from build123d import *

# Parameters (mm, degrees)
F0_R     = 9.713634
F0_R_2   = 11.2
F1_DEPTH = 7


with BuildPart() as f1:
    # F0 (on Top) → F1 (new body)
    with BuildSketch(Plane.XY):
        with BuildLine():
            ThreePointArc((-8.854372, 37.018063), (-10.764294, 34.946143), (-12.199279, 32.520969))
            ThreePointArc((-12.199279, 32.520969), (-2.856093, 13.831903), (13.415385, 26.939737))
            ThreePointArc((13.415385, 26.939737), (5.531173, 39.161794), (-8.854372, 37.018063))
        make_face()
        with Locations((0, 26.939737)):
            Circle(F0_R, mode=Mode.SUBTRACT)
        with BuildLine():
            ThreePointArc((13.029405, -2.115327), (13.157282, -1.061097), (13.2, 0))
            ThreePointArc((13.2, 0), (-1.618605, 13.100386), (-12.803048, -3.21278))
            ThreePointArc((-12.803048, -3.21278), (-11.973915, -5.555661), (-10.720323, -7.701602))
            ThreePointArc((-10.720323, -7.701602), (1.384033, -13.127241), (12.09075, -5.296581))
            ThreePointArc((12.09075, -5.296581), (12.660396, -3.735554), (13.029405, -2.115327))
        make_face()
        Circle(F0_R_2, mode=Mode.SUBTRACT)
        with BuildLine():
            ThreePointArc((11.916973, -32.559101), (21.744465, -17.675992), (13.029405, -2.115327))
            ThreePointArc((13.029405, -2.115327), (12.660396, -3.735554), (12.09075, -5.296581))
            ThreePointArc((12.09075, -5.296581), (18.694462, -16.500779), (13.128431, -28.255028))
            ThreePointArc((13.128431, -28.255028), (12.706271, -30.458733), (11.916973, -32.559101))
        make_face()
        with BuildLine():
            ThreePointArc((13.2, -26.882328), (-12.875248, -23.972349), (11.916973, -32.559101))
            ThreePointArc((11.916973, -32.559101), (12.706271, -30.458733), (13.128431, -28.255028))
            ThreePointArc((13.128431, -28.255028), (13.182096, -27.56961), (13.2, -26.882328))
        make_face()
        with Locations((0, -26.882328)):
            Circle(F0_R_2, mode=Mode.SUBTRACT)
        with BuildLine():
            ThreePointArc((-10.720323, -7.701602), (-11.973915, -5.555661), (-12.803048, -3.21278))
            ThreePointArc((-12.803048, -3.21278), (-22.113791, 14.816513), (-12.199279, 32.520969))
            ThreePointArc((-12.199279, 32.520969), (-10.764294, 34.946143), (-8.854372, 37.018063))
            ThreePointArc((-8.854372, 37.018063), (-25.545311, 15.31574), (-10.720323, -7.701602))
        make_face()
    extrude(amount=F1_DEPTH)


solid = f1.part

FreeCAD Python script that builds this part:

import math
import FreeCAD as App
import Part
import Sketcher

V = App.Vector
Q = App.Units.Quantity

doc = App.newDocument("Part")
body = doc.addObject("PartDesign::Body", "Body")

sketch1 = body.newObject("Sketcher::SketchObject", "Sketch")
sketch1.AttachmentSupport = (doc.getObject("XY_Plane"), [""])
sketch1.MapMode = "FlatFace"
sketch1.addGeometry(Part.ArcOfCircle(Part.Circle(V(0, 26.939737, 0), V(0, 0, 1), 13.415385), math.radians(0.000001), math.radians(131.30111)), False)
sketch1.addGeometry(Part.ArcOfCircle(Part.Circle(V(-1.802537, 14.32506, 0), V(0, 0, 1), 23.763433), math.radians(107.262595), math.radians(247.958785)), False)
sketch1.addGeometry(Part.ArcOfCircle(Part.Circle(V(0, 0, 0), V(0, 0, 1), 13.2), math.radians(-144.306104), math.radians(-23.656729)), False)
sketch1.addGeometry(Part.ArcOfCircle(Part.Circle(V(4.824142, -17.127693, 0), V(0, 0, 1), 13.884481), math.radians(-53.266155), math.radians(58.441967)), False)
sketch1.addGeometry(Part.ArcOfCircle(Part.Circle(V(0.00024, -26.882343, 0), V(0, 0, 1), 13.19976), math.radians(-5.969164), math.radians(0.000063)), False)
sketch1.addGeometry(Part.ArcOfCircle(Part.Circle(V(0, -26.882328, 0), V(0, 0, 1), 13.2), math.radians(-0.000001), math.radians(334.528722)), False)
sketch1.addGeometry(Part.ArcOfCircle(Part.Circle(V(4.612929, -17.049996, 0), V(0, 0, 1), 17.14297), math.radians(-64.781815), math.radians(60.596439)), False)
sketch1.addGeometry(Part.ArcOfCircle(Part.Circle(V(-0.000059, 0.000004, 0), V(0, 0, 1), 13.200059), math.radians(-9.221503), math.radians(-0.000017)), False)
sketch1.addGeometry(Part.ArcOfCircle(Part.Circle(V(0, 0, 0), V(0, 0, 1), 13.2), math.radians(0), math.radians(194.086851)), False)
sketch1.addGeometry(Part.ArcOfCircle(Part.Circle(V(-0.703005, 14.454749, 0), V(0, 0, 1), 21.413842), math.radians(122.470262), math.radians(235.593746)), False)
sketch1.addGeometry(Part.ArcOfCircle(Part.Circle(V(0, 26.939736, 0), V(0, 0, 1), 13.415385), math.radians(155.415662), math.radians(360.000003)), False)
sketch1.addGeometry(Part.Circle(V(0, 26.939737, 0), V(0, 0, 1), 9.713634), False)
sketch1.addGeometry(Part.Circle(V(0, 0, 0), V(0, 0, 1), 11.2), False)
sketch1.addGeometry(Part.Circle(V(0, -26.882328, 0), V(0, 0, 1), 11.2), False)
sketch1.addConstraint(Sketcher.Constraint("Coincident", 0, 2, 1, 1))
sketch1.addConstraint(Sketcher.Constraint("Coincident", 1, 2, 2, 1))
sketch1.addConstraint(Sketcher.Constraint("Coincident", 2, 2, 3, 2))
sketch1.addConstraint(Sketcher.Constraint("Coincident", 3, 1, 4, 1))
sketch1.addConstraint(Sketcher.Constraint("Coincident", 4, 2, 5, 1))
sketch1.addConstraint(Sketcher.Constraint("Coincident", 5, 2, 6, 1))
sketch1.addConstraint(Sketcher.Constraint("Coincident", 6, 2, 7, 1))
sketch1.addConstraint(Sketcher.Constraint("Coincident", 7, 2, 8, 1))
sketch1.addConstraint(Sketcher.Constraint("Coincident", 8, 2, 9, 2))
sketch1.addConstraint(Sketcher.Constraint("Coincident", 9, 1, 10, 1))
sketch1.addConstraint(Sketcher.Constraint("Coincident", 10, 2, 0, 1))
sketch1.addConstraint(Sketcher.Constraint("Coincident", 2, 3, -1, 1))
sketch1.addConstraint(Sketcher.Constraint("Coincident", 8, 3, -1, 1))
sketch1.addConstraint(Sketcher.Constraint("Coincident", 12, 3, -1, 1))
sketch1.addConstraint(Sketcher.Constraint("Coincident", 10, 3, 0, 3))
sketch1.addConstraint(Sketcher.Constraint("Coincident", 11, 3, 0, 3))
sketch1.addConstraint(Sketcher.Constraint("Coincident", 13, 3, 5, 3))
sketch1.addConstraint(Sketcher.Constraint("PointOnObject", 0, 3, -2))
sketch1.addConstraint(Sketcher.Constraint("PointOnObject", 5, 3, -2))
sketch1.addConstraint(Sketcher.Constraint("PointOnObject", 7, 2, -1))
sketch1.addConstraint(Sketcher.Constraint("Diameter", 12, Q("22.4 mm")))
sketch1.addConstraint(Sketcher.Constraint("Diameter", 13, Q("22.4 mm")))
sketch1.addConstraint(Sketcher.Constraint("Radius", 2, Q("13.2 mm")))
sketch1.addConstraint(Sketcher.Constraint("Radius", 5, Q("13.2 mm")))
sketch1.addConstraint(Sketcher.Constraint("Radius", 8, Q("13.2 mm")))
sketch1.addConstraint(Sketcher.Constraint("Diameter", 11, Q("19.427268 mm")))
sketch1.addConstraint(Sketcher.Constraint("Radius", 3, Q("13.884481 mm")))
sketch1.addConstraint(Sketcher.Constraint("Radius", 4, Q("13.19976 mm")))
sketch1.addConstraint(Sketcher.Constraint("Radius", 6, Q("17.14297 mm")))
sketch1.addConstraint(Sketcher.Constraint("Radius", 7, Q("13.200059 mm")))
sketch1.addConstraint(Sketcher.Constraint("Radius", 9, Q("21.413842 mm")))
sketch1.addConstraint(Sketcher.Constraint("DistanceY", 6, 3, 7, 3, Q("17.05 mm")))
sketch1.addConstraint(Sketcher.Constraint("Radius", 0, Q("13.415385 mm")))
sketch1.addConstraint(Sketcher.Constraint("Radius", 1, Q("23.763433 mm")))
sketch1.addConstraint(Sketcher.Constraint("DistanceY", 1, 2, -1, 1, Q("7.701602 mm")))
sketch1.addConstraint(Sketcher.Constraint("DistanceY", 5, 2, -1, 1, Q("32.559101 mm")))
sketch1.addConstraint(Sketcher.Constraint("DistanceX", 7, 3, 3, 3, Q("4.8242 mm")))
sketch1.addConstraint(Sketcher.Constraint("DistanceY", 3, 1, 5, 3, Q("1.3727 mm")))
sketch1.addConstraint(Sketcher.Constraint("DistanceY", 3, 1, 4, 2, Q("1.3727 mm")))
sketch1.addConstraint(Sketcher.Constraint("DistanceY", -1, 1, 1, 3, Q("14.32506 mm")))
sketch1.addConstraint(Sketcher.Constraint("DistanceX", -1, 1, 6, 3, Q("4.612929 mm")))
sketch1.addConstraint(Sketcher.Constraint("DistanceY", -1, 1, 9, 3, Q("14.454749 mm")))
sketch1.addConstraint(Sketcher.Constraint("DistanceY", 13, 3, -1, 1, Q("26.882328 mm")))
sketch1.addConstraint(Sketcher.Constraint("DistanceX", -1, 1, 2, 2, Q("12.09075 mm")))
sketch1.addConstraint(Sketcher.Constraint("DistanceY", 8, 2, -1, 1, Q("3.21278 mm")))
sketch1.addConstraint(Sketcher.Constraint("DistanceX", 9, 1, -1, 1, Q("12.199279 mm")))
sketch1.addConstraint(Sketcher.Constraint("DistanceY", 9, 3, 10, 2, Q("12.484988 mm")))
pad1 = body.newObject("PartDesign::Pad", "Pad")
pad1.Profile = sketch1
pad1.Length = 7

doc.recompute()
